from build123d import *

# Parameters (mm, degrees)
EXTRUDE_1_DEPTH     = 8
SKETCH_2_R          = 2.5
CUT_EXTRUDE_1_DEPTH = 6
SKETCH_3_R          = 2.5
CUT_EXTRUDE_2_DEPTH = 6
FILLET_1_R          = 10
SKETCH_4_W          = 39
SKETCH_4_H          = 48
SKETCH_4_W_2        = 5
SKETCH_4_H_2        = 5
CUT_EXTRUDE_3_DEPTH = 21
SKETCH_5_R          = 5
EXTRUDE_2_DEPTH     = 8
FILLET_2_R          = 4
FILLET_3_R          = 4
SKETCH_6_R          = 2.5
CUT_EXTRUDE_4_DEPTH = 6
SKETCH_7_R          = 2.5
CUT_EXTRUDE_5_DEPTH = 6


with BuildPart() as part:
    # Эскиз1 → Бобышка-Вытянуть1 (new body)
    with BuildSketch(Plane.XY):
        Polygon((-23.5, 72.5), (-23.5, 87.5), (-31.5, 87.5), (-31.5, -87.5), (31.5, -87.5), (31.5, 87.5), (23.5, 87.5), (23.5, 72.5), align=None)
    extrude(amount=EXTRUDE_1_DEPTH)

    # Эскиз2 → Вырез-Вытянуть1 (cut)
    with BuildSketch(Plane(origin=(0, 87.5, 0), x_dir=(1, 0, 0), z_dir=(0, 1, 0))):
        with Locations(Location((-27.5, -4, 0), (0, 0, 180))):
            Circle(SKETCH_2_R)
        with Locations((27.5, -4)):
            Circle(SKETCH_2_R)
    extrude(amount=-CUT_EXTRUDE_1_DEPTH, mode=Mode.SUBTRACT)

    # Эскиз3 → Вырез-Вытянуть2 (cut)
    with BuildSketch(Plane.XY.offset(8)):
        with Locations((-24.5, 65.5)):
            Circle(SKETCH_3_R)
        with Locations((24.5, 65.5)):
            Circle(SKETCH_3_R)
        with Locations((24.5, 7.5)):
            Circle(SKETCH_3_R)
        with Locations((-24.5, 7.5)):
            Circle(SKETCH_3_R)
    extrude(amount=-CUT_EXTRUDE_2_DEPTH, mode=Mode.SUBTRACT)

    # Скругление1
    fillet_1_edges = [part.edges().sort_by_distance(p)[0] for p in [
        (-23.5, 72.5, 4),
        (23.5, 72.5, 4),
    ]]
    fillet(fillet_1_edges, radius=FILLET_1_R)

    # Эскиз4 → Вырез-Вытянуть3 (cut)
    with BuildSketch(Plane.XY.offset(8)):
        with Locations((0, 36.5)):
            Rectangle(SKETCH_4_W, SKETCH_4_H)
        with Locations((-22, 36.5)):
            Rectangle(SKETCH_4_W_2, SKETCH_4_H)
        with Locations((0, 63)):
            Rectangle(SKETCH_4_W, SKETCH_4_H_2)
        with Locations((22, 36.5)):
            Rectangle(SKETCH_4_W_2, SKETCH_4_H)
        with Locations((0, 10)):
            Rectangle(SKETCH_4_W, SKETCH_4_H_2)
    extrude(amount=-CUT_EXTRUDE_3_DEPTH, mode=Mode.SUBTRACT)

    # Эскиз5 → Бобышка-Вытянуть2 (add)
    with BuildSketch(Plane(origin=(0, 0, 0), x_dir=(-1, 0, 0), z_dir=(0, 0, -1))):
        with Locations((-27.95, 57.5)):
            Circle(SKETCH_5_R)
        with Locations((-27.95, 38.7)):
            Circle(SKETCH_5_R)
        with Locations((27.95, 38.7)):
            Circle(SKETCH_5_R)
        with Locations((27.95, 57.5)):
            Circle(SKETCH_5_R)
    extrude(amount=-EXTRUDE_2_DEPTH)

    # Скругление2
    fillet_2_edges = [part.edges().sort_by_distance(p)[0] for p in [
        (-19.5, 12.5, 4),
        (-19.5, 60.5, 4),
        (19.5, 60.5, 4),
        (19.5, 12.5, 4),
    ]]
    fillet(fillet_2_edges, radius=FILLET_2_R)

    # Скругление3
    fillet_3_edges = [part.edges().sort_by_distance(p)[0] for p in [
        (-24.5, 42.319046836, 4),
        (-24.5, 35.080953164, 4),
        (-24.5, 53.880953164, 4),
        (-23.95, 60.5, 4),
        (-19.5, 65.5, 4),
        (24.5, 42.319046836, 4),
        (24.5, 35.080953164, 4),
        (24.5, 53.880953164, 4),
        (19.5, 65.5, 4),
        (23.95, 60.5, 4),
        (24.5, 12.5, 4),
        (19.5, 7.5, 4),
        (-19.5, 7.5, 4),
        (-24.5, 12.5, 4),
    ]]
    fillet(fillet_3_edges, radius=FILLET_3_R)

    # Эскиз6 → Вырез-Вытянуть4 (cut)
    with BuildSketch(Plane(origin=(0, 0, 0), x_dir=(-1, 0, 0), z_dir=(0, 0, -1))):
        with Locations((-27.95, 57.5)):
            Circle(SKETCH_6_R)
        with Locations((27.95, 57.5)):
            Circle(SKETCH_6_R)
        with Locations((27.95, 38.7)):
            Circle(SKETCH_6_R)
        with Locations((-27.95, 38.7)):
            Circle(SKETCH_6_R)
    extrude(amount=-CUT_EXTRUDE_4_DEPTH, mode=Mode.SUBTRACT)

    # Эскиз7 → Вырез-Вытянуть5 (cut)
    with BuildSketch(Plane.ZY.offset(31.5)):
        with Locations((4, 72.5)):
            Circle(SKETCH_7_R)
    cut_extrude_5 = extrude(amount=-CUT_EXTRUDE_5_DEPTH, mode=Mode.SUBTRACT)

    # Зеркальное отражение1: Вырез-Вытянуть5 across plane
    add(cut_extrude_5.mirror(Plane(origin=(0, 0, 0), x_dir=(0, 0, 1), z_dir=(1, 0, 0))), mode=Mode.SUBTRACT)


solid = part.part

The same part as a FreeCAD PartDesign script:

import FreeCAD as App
import Part
import Sketcher


def edges_at(feature, points):
    """Names of the edges that pass closest to the given points."""
    edges = feature.Shape.Edges
    near = lambda p: min(range(len(edges)), key=lambda i: edges[i].distToShape(Part.Vertex(*p))[0])
    return sorted({f"Edge{near(p) + 1}" for p in points})


def add_polygon(sketch, points):
    """Adds a closed chain of lines whose ends are joined by coincident constraints."""
    first, n = sketch.GeometryCount, len(points)
    for a, b in zip(points, points[1:] + points[:1]):
        sketch.addGeometry(Part.LineSegment(App.Vector(*a, 0), App.Vector(*b, 0)), False)
    for i in range(n):
        sketch.addConstraint(Sketcher.Constraint("Coincident", first + i, 2, first + (i + 1) % n, 1))

doc = App.newDocument("Part")
body = doc.addObject("PartDesign::Body", "Body")

sketch1 = body.newObject("Sketcher::SketchObject", "Sketch")
sketch1.AttachmentSupport = (doc.getObject("XY_Plane"), [""])
sketch1.MapMode = "FlatFace"
add_polygon(sketch1, [(-24, 72), (-24, 88), (-32, 88), (-32, -88), (32, -88), (32, 88), (24, 88), (24, 72)])
sketch1.addConstraint(Sketcher.Constraint("Vertical", 0))
sketch1.addConstraint(Sketcher.Constraint("Horizontal", 1))
sketch1.addConstraint(Sketcher.Constraint("Vertical", 2))
sketch1.addConstraint(Sketcher.Constraint("Horizontal", 3))
sketch1.addConstraint(Sketcher.Constraint("Vertical", 4))
sketch1.addConstraint(Sketcher.Constraint("Horizontal", 5))
sketch1.addConstraint(Sketcher.Constraint("Vertical", 6))
sketch1.addConstraint(Sketcher.Constraint("Horizontal", 7))
sketch1.addConstraint(Sketcher.Constraint("Symmetric", 1, 2, 3, 2, -1, 1))
sketch1.addConstraint(Sketcher.Constraint("Symmetric", 0, 2, 5, 2, -2))
sketch1.addConstraint(Sketcher.Constraint("DistanceX", 1, 2, 1, 1, 8.0))
sketch1.addConstraint(Sketcher.Constraint("DistanceX", 3, 1, 3, 2, 63.0))
sketch1.addConstraint(Sketcher.Constraint("DistanceY", 0, 1, 0, 2, 15.0))
sketch1.addConstraint(Sketcher.Constraint("DistanceY", 2, 2, 2, 1, 175.0))
pad1 = body.newObject("PartDesign::Pad", "Pad")
pad1.Profile = sketch1
pad1.Length = 8

sketch2 = body.newObject("Sketcher::SketchObject", "Sketch001")
sketch2.AttachmentSupport = (doc.getObject("XZ_Plane"), [""])
sketch2.MapMode = "FlatFace"
sketch2.AttachmentOffset = App.Placement(App.Vector(0, 0, -87.5), App.Rotation())
sketch2.addGeometry(Part.Circle(App.Vector(-27.5, 4, 0), App.Vector(0, 0, 1), 2.5), False)
sketch2.addGeometry(Part.Circle(App.Vector(27.5, 4, 0), App.Vector(0, 0, 1), 2.5), False)
sketch2.addConstraint(Sketcher.Constraint("Equal", 0, 1))
sketch2.addConstraint(Sketcher.Constraint("Symmetric", 0, 3, 1, 3, -2))
sketch2.addConstraint(Sketcher.Constraint("Diameter", 0, 5.0))
sketch2.addConstraint(Sketcher.Constraint("DistanceY", -1, 1, 0, 3, 4.0))
sketch2.addConstraint(Sketcher.Constraint("DistanceX", 0, 3, 1, 3, 55.0))
pocket1 = body.newObject("PartDesign::Pocket", "Pocket")
pocket1.Profile = sketch2
pocket1.Length = 6
pocket1.Reversed = True

sketch3 = body.newObject("Sketcher::SketchObject", "Sketch002")
sketch3.AttachmentSupport = (doc.getObject("XY_Plane"), [""])
sketch3.MapMode = "FlatFace"
sketch3.AttachmentOffset = App.Placement(App.Vector(0, 0, 8), App.Rotation())
sketch3.addGeometry(Part.Circle(App.Vector(-24.5, 65.5, 0), App.Vector(0, 0, 1), 2.5), False)
sketch3.addGeometry(Part.Circle(App.Vector(24.5, 65.5, 0), App.Vector(0, 0, 1), 2.5), False)
sketch3.addGeometry(Part.Circle(App.Vector(24.5, 7.5, 0), App.Vector(0, 0, 1), 2.5), False)
sketch3.addGeometry(Part.Circle(App.Vector(-24.5, 7.5, 0), App.Vector(0, 0, 1), 2.5), False)
sketch3.addConstraint(Sketcher.Constraint("Equal", 0, 1))
sketch3.addConstraint(Sketcher.Constraint("Equal", 1, 2))
sketch3.addConstraint(Sketcher.Constraint("Equal", 2, 3))
sketch3.addConstraint(Sketcher.Constraint("Symmetric", 0, 3, 1, 3, -2))
sketch3.addConstraint(Sketcher.Constraint("Symmetric", 2, 3, 3, 3, -2))
sketch3.addConstraint(Sketcher.Constraint("Vertical", 1, 3, 2, 3))
sketch3.addConstraint(Sketcher.Constraint("Diameter", 0, 5.0))
sketch3.addConstraint(Sketcher.Constraint("DistanceX", 0, 3, 1, 3, 49.0))
sketch3.addConstraint(Sketcher.Constraint("DistanceY", 2, 3, 1, 3, 58.0))
sketch3.addConstraint(Sketcher.Constraint("DistanceY", -1, 1, 0, 3, 65.5))
pocket2 = body.newObject("PartDesign::Pocket", "Pocket001")
pocket2.Profile = sketch3
pocket2.Length = 6
doc.recompute()

fillet = body.newObject("PartDesign::Fillet", "Fillet")
fillet.Base = (pocket2, edges_at(pocket2, [(-23.5, 72.5, 4), (23.5, 72.5, 4)]))
fillet.Radius = 10

sketch4 = body.newObject("Sketcher::SketchObject", "Sketch003")
sketch4.AttachmentSupport = (doc.getObject("XY_Plane"), [""])
sketch4.MapMode = "FlatFace"
sketch4.AttachmentOffset = App.Placement(App.Vector(0, 0, 8), App.Rotation())
add_polygon(sketch4, [(20, 60), (20, 66), (-20, 66), (-20, 60), (-24, 60), (-24, 12), (-20, 12), (-20, 8), (20, 8), (20, 12), (24, 12), (24, 60)])
sketch4.addConstraint(Sketcher.Constraint("Vertical", 0))
sketch4.addConstraint(Sketcher.Constraint("Horizontal", 1))
sketch4.addConstraint(Sketcher.Constraint("Vertical", 2))
sketch4.addConstraint(Sketcher.Constraint("Horizontal", 3))
sketch4.addConstraint(Sketcher.Constraint("Vertical", 4))
sketch4.addConstraint(Sketcher.Constraint("Horizontal", 5))
sketch4.addConstraint(Sketcher.Constraint("Vertical", 6))
sketch4.addConstraint(Sketcher.Constraint("Horizontal", 7))
sketch4.addConstraint(Sketcher.Constraint("Vertical", 8))
sketch4.addConstraint(Sketcher.Constraint("Horizontal", 9))
sketch4.addConstraint(Sketcher.Constraint("Vertical", 10))
sketch4.addConstraint(Sketcher.Constraint("Horizontal", 11))
sketch4.addConstraint(Sketcher.Constraint("Symmetric", 5, 2, 8, 2, -2))
sketch4.addConstraint(Sketcher.Constraint("Symmetric", 3, 2, 10, 2, -2))
sketch4.addConstraint(Sketcher.Constraint("Vertical", 2, 2, 5, 2))
sketch4.addConstraint(Sketcher.Constraint("Vertical", 0, 2, 7, 2))
sketch4.addConstraint(Sketcher.Constraint("Equal", 11, 0))
sketch4.addConstraint(Sketcher.Constraint("Equal", 2, 6))
sketch4.addConstraint(Sketcher.Constraint("DistanceX", 1, 2, 1, 1, 39.0))
sketch4.addConstraint(Sketcher.Constraint("DistanceX", 3, 2, 3, 1, 5.0))
sketch4.addConstraint(Sketcher.Constraint("DistanceY", 4, 2, 4, 1, 48.0))
sketch4.addConstraint(Sketcher.Constraint("DistanceY", -1, 1, 0, 2, 65.5))
pocket3 = body.newObject("PartDesign::Pocket", "Pocket002")
pocket3.Profile = sketch4
pocket3.Length = 21

sketch5 = body.newObject("Sketcher::SketchObject", "Sketch004")
sketch5.AttachmentSupport = (doc.getObject("XY_Plane"), [""])
sketch5.MapMode = "FlatFace"
sketch5.addGeometry(Part.Circle(App.Vector(28, 58, 0), App.Vector(0, 0, 1), 5), False)
sketch5.addGeometry(Part.Circle(App.Vector(28, 39, 0), App.Vector(0, 0, 1), 5), False)
sketch5.addGeometry(Part.Circle(App.Vector(-28, 39, 0), App.Vector(0, 0, 1), 5), False)
sketch5.addGeometry(Part.Circle(App.Vector(-28, 58, 0), App.Vector(0, 0, 1), 5), False)
sketch5.addConstraint(Sketcher.Constraint("Equal", 0, 1))
sketch5.addConstraint(Sketcher.Constraint("Equal", 1, 2))
sketch5.addConstraint(Sketcher.Constraint("Equal", 2, 3))
sketch5.addConstraint(Sketcher.Constraint("Symmetric", 1, 3, 2, 3, -2))
sketch5.addConstraint(Sketcher.Constraint("Symmetric", 0, 3, 3, 3, -2))
sketch5.addConstraint(Sketcher.Constraint("Vertical", 0, 3, 1, 3))
sketch5.addConstraint(Sketcher.Constraint("Diameter", 0, 10.0))
sketch5.addConstraint(Sketcher.Constraint("DistanceY", -1, 1, 0, 3, 57.5))
sketch5.addConstraint(Sketcher.Constraint("DistanceY", -1, 1, 1, 3, 38.7))
sketch5.addConstraint(Sketcher.Constraint("DistanceX", 2, 3, 1, 3, 55.9))
pad2 = body.newObject("PartDesign::Pad", "Pad001")
pad2.Profile = sketch5
pad2.Length = 8
doc.recompute()

fillet2 = body.newObject("PartDesign::Fillet", "Fillet001")
fillet2.Base = (pad2, edges_at(pad2, [
    (-19.5, 12.5, 4),
    (-19.5, 60.5, 4),
    (19.5, 60.5, 4),
    (19.5, 12.5, 4),
]))
fillet2.Radius = 4
doc.recompute()

fillet3 = body.newObject("PartDesign::Fillet", "Fillet002")
fillet3.Base = (fillet2, edges_at(fillet2, [
    (-24.5, 42.319, 4),
    (-24.5, 35.081, 4),
    (-24.5, 53.881, 4),
    (-23.95, 60.5, 4),
    (-19.5, 65.5, 4),
    (24.5, 42.319, 4),
    (24.5, 35.081, 4),
    (24.5, 53.881, 4),
    (19.5, 65.5, 4),
    (23.95, 60.5, 4),
    (24.5, 12.5, 4),
    (19.5, 7.5, 4),
    (-19.5, 7.5, 4),
    (-24.5, 12.5, 4),
]))
fillet3.Radius = 4

sketch6 = body.newObject("Sketcher::SketchObject", "Sketch005")
sketch6.AttachmentSupport = (doc.getObject("XY_Plane"), [""])
sketch6.MapMode = "FlatFace"
sketch6.addGeometry(Part.Circle(App.Vector(27.9, 57.5, 0), App.Vector(0, 0, 1), 2.5), False)
sketch6.addGeometry(Part.Circle(App.Vector(-27.9, 57.5, 0), App.Vector(0, 0, 1), 2.5), False)
sketch6.addGeometry(Part.Circle(App.Vector(-27.9, 38.7, 0), App.Vector(0, 0, 1), 2.5), False)
sketch6.addGeometry(Part.Circle(App.Vector(27.9, 38.7, 0), App.Vector(0, 0, 1), 2.5), False)
sketch6.addConstraint(Sketcher.Constraint("Equal", 0, 1))
sketch6.addConstraint(Sketcher.Constraint("Equal", 1, 2))
sketch6.addConstraint(Sketcher.Constraint("Equal", 2, 3))
sketch6.addConstraint(Sketcher.Constraint("Symmetric", 0, 3, 1, 3, -2))
sketch6.addConstraint(Sketcher.Constraint("Symmetric", 2, 3, 3, 3, -2))
sketch6.addConstraint(Sketcher.Constraint("Vertical", 1, 3, 2, 3))
sketch6.addConstraint(Sketcher.Constraint("Diameter", 0, 5.0))
sketch6.addConstraint(Sketcher.Constraint("DistanceY", -1, 1, 0, 3, 57.5))
sketch6.addConstraint(Sketcher.Constraint("DistanceY", -1, 1, 2, 3, 38.7))
sketch6.addConstraint(Sketcher.Constraint("DistanceX", 1, 3, 0, 3, 55.9))
pocket4 = body.newObject("PartDesign::Pocket", "Pocket003")
pocket4.Profile = sketch6
pocket4.Length = 6
pocket4.Reversed = True

sketch7 = body.newObject("Sketcher::SketchObject", "Sketch006")
sketch7.AttachmentSupport = (doc.getObject("YZ_Plane"), [""])
sketch7.MapMode = "FlatFace"
sketch7.AttachmentOffset = App.Placement(App.Vector(0, 0, -31.5), App.Rotation())
sketch7.addGeometry(Part.Circle(App.Vector(72.5, 4, 0), App.Vector(0, 0, 1), 2.5), False)
sketch7.addConstraint(Sketcher.Constraint("Diameter", 0, 5.0))
sketch7.addConstraint(Sketcher.Constraint("DistanceY", -1, 1, 0, 3, 4.0))
sketch7.addConstraint(Sketcher.Constraint("DistanceX", -1, 1, 0, 3, 72.5))
pocket5 = body.newObject("PartDesign::Pocket", "Pocket004")
pocket5.Profile = sketch7
pocket5.Length = 6
pocket5.Reversed = True
doc.recompute()

mirrored = body.newObject("PartDesign::Mirrored", "Mirrored")
mirrored.Originals = [pocket5]
mirrored.MirrorPlane = (doc.getObject("YZ_Plane"), [""])
body.Tip = mirrored

doc.recompute()
